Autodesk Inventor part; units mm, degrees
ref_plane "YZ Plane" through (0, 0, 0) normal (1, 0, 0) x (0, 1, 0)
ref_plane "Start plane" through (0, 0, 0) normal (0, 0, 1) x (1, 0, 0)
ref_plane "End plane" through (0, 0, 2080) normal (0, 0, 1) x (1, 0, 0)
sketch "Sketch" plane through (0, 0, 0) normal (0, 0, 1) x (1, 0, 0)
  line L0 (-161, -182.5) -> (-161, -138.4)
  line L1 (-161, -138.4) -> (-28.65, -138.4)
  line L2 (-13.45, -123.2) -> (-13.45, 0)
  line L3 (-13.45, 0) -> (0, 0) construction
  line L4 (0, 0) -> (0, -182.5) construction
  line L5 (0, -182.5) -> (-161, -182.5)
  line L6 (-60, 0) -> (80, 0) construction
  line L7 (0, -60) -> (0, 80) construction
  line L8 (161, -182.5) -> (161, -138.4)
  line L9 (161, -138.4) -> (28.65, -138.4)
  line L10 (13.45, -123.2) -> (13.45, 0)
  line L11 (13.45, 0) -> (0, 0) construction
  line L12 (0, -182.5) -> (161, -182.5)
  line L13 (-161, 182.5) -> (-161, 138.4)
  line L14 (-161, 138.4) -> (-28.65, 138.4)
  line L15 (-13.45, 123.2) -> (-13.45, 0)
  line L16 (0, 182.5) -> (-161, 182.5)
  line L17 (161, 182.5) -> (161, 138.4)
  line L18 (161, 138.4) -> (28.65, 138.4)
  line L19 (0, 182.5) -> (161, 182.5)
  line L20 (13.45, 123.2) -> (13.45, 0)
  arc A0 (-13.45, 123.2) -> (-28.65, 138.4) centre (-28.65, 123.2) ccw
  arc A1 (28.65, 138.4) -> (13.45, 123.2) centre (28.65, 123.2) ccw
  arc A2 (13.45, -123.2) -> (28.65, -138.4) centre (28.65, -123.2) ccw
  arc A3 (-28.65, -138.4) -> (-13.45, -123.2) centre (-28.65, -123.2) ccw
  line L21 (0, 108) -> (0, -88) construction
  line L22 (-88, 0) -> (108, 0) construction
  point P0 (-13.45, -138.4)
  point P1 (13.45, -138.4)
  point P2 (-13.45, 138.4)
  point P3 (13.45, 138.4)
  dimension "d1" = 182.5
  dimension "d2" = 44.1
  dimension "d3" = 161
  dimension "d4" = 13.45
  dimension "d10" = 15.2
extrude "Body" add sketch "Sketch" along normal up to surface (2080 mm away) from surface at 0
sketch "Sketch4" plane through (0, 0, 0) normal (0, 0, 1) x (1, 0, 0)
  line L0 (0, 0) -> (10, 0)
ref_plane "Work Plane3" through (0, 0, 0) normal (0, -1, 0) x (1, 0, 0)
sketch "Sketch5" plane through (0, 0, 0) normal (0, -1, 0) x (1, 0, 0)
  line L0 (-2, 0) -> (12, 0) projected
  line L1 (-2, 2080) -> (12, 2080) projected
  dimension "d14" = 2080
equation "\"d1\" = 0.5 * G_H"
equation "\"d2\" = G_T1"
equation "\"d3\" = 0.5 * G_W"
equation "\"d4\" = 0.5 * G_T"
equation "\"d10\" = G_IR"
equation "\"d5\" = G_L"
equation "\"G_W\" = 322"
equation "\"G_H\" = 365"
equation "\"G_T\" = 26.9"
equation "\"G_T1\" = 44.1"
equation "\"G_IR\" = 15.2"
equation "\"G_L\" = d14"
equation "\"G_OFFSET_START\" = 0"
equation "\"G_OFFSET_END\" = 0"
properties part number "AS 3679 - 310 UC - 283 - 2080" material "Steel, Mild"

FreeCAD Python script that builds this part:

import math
import FreeCAD as App
import Part
import Sketcher
from FreeCAD import Vector

doc = App.newDocument("Part")
body = doc.addObject("PartDesign::Body", "Body")

# Sketch on XY plane
sketch1 = doc.addObject("Sketcher::SketchObject", "Sketch")
body.addObject(sketch1)
sketch1.AttachmentSupport = (doc.XY_Plane, [""])
sketch1.MapMode = "FlatFace"
sketch1.addGeometry(Part.LineSegment(Vector(-161, -138.4, 0), Vector(-161, -182.5, 0)), False)
sketch1.addGeometry(Part.LineSegment(Vector(-161, -182.5, 0), Vector(161, -182.5, 0)), False)
sketch1.addGeometry(Part.LineSegment(Vector(161, -182.5, 0), Vector(161, -138.4, 0)), False)
sketch1.addGeometry(Part.LineSegment(Vector(161, -138.4, 0), Vector(28.65, -138.4, 0)), False)
sketch1.addGeometry(Part.ArcOfCircle(Part.Circle(Vector(28.65, -123.2, 0), Vector(0, 0, 1), 15.2), math.radians(180), math.radians(270)), False)
sketch1.addGeometry(Part.LineSegment(Vector(13.45, -123.2, 0), Vector(13.45, 123.2, 0)), False)
sketch1.addGeometry(Part.ArcOfCircle(Part.Circle(Vector(28.65, 123.2, 0), Vector(0, 0, 1), 15.2), math.radians(90), math.radians(180)), False)
sketch1.addGeometry(Part.LineSegment(Vector(28.65, 138.4, 0), Vector(161, 138.4, 0)), False)
sketch1.addGeometry(Part.LineSegment(Vector(161, 138.4, 0), Vector(161, 182.5, 0)), False)
sketch1.addGeometry(Part.LineSegment(Vector(161, 182.5, 0), Vector(-161, 182.5, 0)), False)
sketch1.addGeometry(Part.LineSegment(Vector(-161, 182.5, 0), Vector(-161, 138.4, 0)), False)
sketch1.addGeometry(Part.LineSegment(Vector(-161, 138.4, 0), Vector(-28.65, 138.4, 0)), False)
sketch1.addGeometry(Part.ArcOfCircle(Part.Circle(Vector(-28.65, 123.2, 0), Vector(0, 0, 1), 15.2), math.radians(0), math.radians(90)), False)
sketch1.addGeometry(Part.LineSegment(Vector(-13.45, 123.2, 0), Vector(-13.45, -123.2, 0)), False)
sketch1.addGeometry(Part.ArcOfCircle(Part.Circle(Vector(-28.65, -123.2, 0), Vector(0, 0, 1), 15.2), math.radians(-90), math.radians(0)), False)
sketch1.addGeometry(Part.LineSegment(Vector(-28.65, -138.4, 0), Vector(-161, -138.4, 0)), False)
sketch1.addConstraint(Sketcher.Constraint("Coincident", 0, 2, 1, 1))
sketch1.addConstraint(Sketcher.Constraint("Coincident", 1, 2, 2, 1))
sketch1.addConstraint(Sketcher.Constraint("Coincident", 2, 2, 3, 1))
sketch1.addConstraint(Sketcher.Constraint("Tangent", 3, 2, 4, 2))
sketch1.addConstraint(Sketcher.Constraint("Tangent", 4, 1, 5, 1))
sketch1.addConstraint(Sketcher.Constraint("Tangent", 5, 2, 6, 2))
sketch1.addConstraint(Sketcher.Constraint("Tangent", 6, 1, 7, 1))
sketch1.addConstraint(Sketcher.Constraint("Coincident", 7, 2, 8, 1))
sketch1.addConstraint(Sketcher.Constraint("Coincident", 8, 2, 9, 1))
sketch1.addConstraint(Sketcher.Constraint("Coincident", 9, 2, 10, 1))
sketch1.addConstraint(Sketcher.Constraint("Coincident", 10, 2, 11, 1))
sketch1.addConstraint(Sketcher.Constraint("Tangent", 11, 2, 12, 2))
sketch1.addConstraint(Sketcher.Constraint("Tangent", 12, 1, 13, 1))
sketch1.addConstraint(Sketcher.Constraint("Tangent", 13, 2, 14, 2))
sketch1.addConstraint(Sketcher.Constraint("Tangent", 14, 1, 15, 1))
sketch1.addConstraint(Sketcher.Constraint("Coincident", 15, 2, 0, 1))
sketch1.addConstraint(Sketcher.Constraint("Vertical", 0))
sketch1.addConstraint(Sketcher.Constraint("Horizontal", 1))
sketch1.addConstraint(Sketcher.Constraint("Vertical", 2))
sketch1.addConstraint(Sketcher.Constraint("Horizontal", 3))
sketch1.addConstraint(Sketcher.Constraint("Vertical", 5))
sketch1.addConstraint(Sketcher.Constraint("Horizontal", 7))
sketch1.addConstraint(Sketcher.Constraint("Vertical", 8))
sketch1.addConstraint(Sketcher.Constraint("Horizontal", 9))
sketch1.addConstraint(Sketcher.Constraint("Vertical", 10))
sketch1.addConstraint(Sketcher.Constraint("Horizontal", 11))
sketch1.addConstraint(Sketcher.Constraint("Vertical", 13))
sketch1.addConstraint(Sketcher.Constraint("Horizontal", 15))
sketch1.addConstraint(Sketcher.Constraint("Equal", 4, 6))
sketch1.addConstraint(Sketcher.Constraint("Equal", 6, 12))
sketch1.addConstraint(Sketcher.Constraint("Equal", 12, 14))
sketch1.addConstraint(Sketcher.Constraint("Symmetric", 4, 3, 12, 3, -1, 1))
sketch1.addConstraint(Sketcher.Constraint("Symmetric", 0, 2, 8, 2, -1, 1))
sketch1.addConstraint(Sketcher.Constraint("Symmetric", 7, 2, 10, 2, -2))
sketch1.addConstraint(Sketcher.Constraint("Symmetric", 2, 2, 15, 2, -2))
sketch1.addConstraint(Sketcher.Constraint("Radius", 4, 15.2))
sketch1.addConstraint(Sketcher.Constraint("DistanceY", 0, 2, 0, 1, 44.1))
sketch1.addConstraint(Sketcher.Constraint("DistanceX", 0, 2, -1, 1, 161.0))
sketch1.addConstraint(Sketcher.Constraint("DistanceY", 0, 2, -1, 1, 182.5))
sketch1.addConstraint(Sketcher.Constraint("DistanceX", -1, 1, 4, 1, 13.45))
pad1 = doc.addObject("PartDesign::Pad", "Pad")
body.addObject(pad1)
pad1.Profile = sketch1
pad1.Length = 2080

doc.recompute()
